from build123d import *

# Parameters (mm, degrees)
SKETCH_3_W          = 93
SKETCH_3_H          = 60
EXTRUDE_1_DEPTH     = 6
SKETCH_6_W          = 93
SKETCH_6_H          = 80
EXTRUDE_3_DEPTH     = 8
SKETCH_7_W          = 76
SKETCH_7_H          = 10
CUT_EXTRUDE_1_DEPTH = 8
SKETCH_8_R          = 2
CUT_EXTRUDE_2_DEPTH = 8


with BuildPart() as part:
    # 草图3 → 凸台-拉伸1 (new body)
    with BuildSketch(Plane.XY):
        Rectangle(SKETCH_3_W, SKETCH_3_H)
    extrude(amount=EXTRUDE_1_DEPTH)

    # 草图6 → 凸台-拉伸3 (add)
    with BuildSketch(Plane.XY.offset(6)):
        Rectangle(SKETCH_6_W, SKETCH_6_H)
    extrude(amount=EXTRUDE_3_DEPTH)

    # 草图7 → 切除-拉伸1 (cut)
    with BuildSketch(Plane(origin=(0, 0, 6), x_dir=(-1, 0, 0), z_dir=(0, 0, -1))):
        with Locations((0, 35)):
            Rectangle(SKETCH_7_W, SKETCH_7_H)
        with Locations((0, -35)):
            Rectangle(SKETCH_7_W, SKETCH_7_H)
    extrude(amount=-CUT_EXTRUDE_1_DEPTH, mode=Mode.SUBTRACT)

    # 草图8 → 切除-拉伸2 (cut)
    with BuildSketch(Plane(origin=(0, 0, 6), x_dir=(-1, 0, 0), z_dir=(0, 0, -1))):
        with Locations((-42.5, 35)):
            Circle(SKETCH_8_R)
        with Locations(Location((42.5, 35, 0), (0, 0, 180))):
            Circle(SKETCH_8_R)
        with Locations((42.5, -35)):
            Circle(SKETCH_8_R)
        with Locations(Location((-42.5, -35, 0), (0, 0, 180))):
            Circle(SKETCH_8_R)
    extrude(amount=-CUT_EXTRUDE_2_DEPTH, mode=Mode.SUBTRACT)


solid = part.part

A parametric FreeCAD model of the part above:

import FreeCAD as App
import Part
import Sketcher


def add_polygon(sketch, points):
    """Adds a closed chain of lines whose ends are joined by coincident constraints."""
    first, n = sketch.GeometryCount, len(points)
    for a, b in zip(points, points[1:] + points[:1]):
        sketch.addGeometry(Part.LineSegment(App.Vector(*a, 0), App.Vector(*b, 0)), False)
    for i in range(n):
        sketch.addConstraint(Sketcher.Constraint("Coincident", first + i, 2, first + (i + 1) % n, 1))

doc = App.newDocument("Part")
body = doc.addObject("PartDesign::Body", "Body")

sketch1 = body.newObject("Sketcher::SketchObject", "Sketch")
sketch1.AttachmentSupport = (doc.getObject("XY_Plane"), [""])
sketch1.MapMode = "FlatFace"
add_polygon(sketch1, [(-46, 30), (-46, -30), (46, -30), (46, 30)])
sketch1.addConstraint([
    Sketcher.Constraint("Vertical", 0),
    Sketcher.Constraint("Horizontal", 1),
    Sketcher.Constraint("Vertical", 2),
    Sketcher.Constraint("Horizontal", 3),
    Sketcher.Constraint("Symmetric", 0, 2, 2, 2, -1, 1),
    Sketcher.Constraint("DistanceX", 1, 1, 1, 2, 93.0),
    Sketcher.Constraint("DistanceY", 0, 2, 0, 1, 60.0),
])
pad1 = body.newObject("PartDesign::Pad", "Pad")
pad1.Profile = sketch1
pad1.Length = 6

sketch2 = body.newObject("Sketcher::SketchObject", "Sketch001")
sketch2.AttachmentSupport = (doc.getObject("XY_Plane"), [""])
sketch2.MapMode = "FlatFace"
sketch2.AttachmentOffset = App.Placement(App.Vector(0, 0, 6), App.Rotation())
add_polygon(sketch2, [(-46, 40), (-46, -40), (46, -40), (46, 40)])
sketch2.addConstraint([
    Sketcher.Constraint("Vertical", 0),
    Sketcher.Constraint("Horizontal", 1),
    Sketcher.Constraint("Vertical", 2),
    Sketcher.Constraint("Horizontal", 3),
    Sketcher.Constraint("Symmetric", 0, 2, 2, 2, -1, 1),
    Sketcher.Constraint("DistanceX", 1, 1, 1, 2, 93.0),
    Sketcher.Constraint("DistanceY", 0, 2, 0, 1, 80.0),
])
pad2 = body.newObject("PartDesign::Pad", "Pad001")
pad2.Profile = sketch2
pad2.Length = 8

sketch3 = body.newObject("Sketcher::SketchObject", "Sketch002")
sketch3.AttachmentSupport = (doc.getObject("XY_Plane"), [""])
sketch3.MapMode = "FlatFace"
sketch3.AttachmentOffset = App.Placement(App.Vector(0, 0, 6), App.Rotation())
add_polygon(sketch3, [(38, 40), (38, 30), (-38, 30), (-38, 40)])
add_polygon(sketch3, [(38, -30), (38, -40), (-38, -40), (-38, -30)])
sketch3.addConstraint([
    Sketcher.Constraint("Vertical", 0),
    Sketcher.Constraint("Horizontal", 1),
    Sketcher.Constraint("Vertical", 2),
    Sketcher.Constraint("Horizontal", 3),
    Sketcher.Constraint("Vertical", 4),
    Sketcher.Constraint("Horizontal", 5),
    Sketcher.Constraint("Vertical", 6),
    Sketcher.Constraint("Horizontal", 7),
    Sketcher.Constraint("Symmetric", 2, 2, 4, 2, -1, 1),
    Sketcher.Constraint("Symmetric", 0, 2, 6, 2, -1, 1),
    Sketcher.Constraint("Vertical", 3, 2, 4, 2),
    Sketcher.Constraint("DistanceX", 1, 2, 1, 1, 76.0),
    Sketcher.Constraint("DistanceY", 0, 2, 0, 1, 10.0),
    Sketcher.Constraint("DistanceY", -1, 1, 0, 2, 30.0),
])
pocket1 = body.newObject("PartDesign::Pocket", "Pocket")
pocket1.Profile = sketch3
pocket1.Length = 8
pocket1.Reversed = True

sketch4 = body.newObject("Sketcher::SketchObject", "Sketch003")
sketch4.AttachmentSupport = (doc.getObject("XY_Plane"), [""])
sketch4.MapMode = "FlatFace"
sketch4.AttachmentOffset = App.Placement(App.Vector(0, 0, 6), App.Rotation())
sketch4.addGeometry([
    Part.Circle(App.Vector(42.5, 35, 0), App.Vector(0, 0, 1), 2),
    Part.Circle(App.Vector(-42.5, 35, 0), App.Vector(0, 0, 1), 2),
    Part.Circle(App.Vector(-42.5, -35, 0), App.Vector(0, 0, 1), 2),
    Part.Circle(App.Vector(42.5, -35, 0), App.Vector(0, 0, 1), 2),
], False)
sketch4.addConstraint([
    Sketcher.Constraint("Equal", 0, 1),
    Sketcher.Constraint("Equal", 1, 2),
    Sketcher.Constraint("Equal", 2, 3),
    Sketcher.Constraint("Symmetric", 0, 3, 2, 3, -1, 1),
    Sketcher.Constraint("Symmetric", 1, 3, 3, 3, -1, 1),
    Sketcher.Constraint("Symmetric", 0, 3, 1, 3, -2),
    Sketcher.Constraint("Diameter", 0, 4.0),
    Sketcher.Constraint("DistanceY", -1, 1, 0, 3, 35.0),
    Sketcher.Constraint("DistanceX", 1, 3, 0, 3, 85.0),
])
pocket2 = body.newObject("PartDesign::Pocket", "Pocket001")
pocket2.Profile = sketch4
pocket2.Length = 8
pocket2.Reversed = True

doc.recompute()
